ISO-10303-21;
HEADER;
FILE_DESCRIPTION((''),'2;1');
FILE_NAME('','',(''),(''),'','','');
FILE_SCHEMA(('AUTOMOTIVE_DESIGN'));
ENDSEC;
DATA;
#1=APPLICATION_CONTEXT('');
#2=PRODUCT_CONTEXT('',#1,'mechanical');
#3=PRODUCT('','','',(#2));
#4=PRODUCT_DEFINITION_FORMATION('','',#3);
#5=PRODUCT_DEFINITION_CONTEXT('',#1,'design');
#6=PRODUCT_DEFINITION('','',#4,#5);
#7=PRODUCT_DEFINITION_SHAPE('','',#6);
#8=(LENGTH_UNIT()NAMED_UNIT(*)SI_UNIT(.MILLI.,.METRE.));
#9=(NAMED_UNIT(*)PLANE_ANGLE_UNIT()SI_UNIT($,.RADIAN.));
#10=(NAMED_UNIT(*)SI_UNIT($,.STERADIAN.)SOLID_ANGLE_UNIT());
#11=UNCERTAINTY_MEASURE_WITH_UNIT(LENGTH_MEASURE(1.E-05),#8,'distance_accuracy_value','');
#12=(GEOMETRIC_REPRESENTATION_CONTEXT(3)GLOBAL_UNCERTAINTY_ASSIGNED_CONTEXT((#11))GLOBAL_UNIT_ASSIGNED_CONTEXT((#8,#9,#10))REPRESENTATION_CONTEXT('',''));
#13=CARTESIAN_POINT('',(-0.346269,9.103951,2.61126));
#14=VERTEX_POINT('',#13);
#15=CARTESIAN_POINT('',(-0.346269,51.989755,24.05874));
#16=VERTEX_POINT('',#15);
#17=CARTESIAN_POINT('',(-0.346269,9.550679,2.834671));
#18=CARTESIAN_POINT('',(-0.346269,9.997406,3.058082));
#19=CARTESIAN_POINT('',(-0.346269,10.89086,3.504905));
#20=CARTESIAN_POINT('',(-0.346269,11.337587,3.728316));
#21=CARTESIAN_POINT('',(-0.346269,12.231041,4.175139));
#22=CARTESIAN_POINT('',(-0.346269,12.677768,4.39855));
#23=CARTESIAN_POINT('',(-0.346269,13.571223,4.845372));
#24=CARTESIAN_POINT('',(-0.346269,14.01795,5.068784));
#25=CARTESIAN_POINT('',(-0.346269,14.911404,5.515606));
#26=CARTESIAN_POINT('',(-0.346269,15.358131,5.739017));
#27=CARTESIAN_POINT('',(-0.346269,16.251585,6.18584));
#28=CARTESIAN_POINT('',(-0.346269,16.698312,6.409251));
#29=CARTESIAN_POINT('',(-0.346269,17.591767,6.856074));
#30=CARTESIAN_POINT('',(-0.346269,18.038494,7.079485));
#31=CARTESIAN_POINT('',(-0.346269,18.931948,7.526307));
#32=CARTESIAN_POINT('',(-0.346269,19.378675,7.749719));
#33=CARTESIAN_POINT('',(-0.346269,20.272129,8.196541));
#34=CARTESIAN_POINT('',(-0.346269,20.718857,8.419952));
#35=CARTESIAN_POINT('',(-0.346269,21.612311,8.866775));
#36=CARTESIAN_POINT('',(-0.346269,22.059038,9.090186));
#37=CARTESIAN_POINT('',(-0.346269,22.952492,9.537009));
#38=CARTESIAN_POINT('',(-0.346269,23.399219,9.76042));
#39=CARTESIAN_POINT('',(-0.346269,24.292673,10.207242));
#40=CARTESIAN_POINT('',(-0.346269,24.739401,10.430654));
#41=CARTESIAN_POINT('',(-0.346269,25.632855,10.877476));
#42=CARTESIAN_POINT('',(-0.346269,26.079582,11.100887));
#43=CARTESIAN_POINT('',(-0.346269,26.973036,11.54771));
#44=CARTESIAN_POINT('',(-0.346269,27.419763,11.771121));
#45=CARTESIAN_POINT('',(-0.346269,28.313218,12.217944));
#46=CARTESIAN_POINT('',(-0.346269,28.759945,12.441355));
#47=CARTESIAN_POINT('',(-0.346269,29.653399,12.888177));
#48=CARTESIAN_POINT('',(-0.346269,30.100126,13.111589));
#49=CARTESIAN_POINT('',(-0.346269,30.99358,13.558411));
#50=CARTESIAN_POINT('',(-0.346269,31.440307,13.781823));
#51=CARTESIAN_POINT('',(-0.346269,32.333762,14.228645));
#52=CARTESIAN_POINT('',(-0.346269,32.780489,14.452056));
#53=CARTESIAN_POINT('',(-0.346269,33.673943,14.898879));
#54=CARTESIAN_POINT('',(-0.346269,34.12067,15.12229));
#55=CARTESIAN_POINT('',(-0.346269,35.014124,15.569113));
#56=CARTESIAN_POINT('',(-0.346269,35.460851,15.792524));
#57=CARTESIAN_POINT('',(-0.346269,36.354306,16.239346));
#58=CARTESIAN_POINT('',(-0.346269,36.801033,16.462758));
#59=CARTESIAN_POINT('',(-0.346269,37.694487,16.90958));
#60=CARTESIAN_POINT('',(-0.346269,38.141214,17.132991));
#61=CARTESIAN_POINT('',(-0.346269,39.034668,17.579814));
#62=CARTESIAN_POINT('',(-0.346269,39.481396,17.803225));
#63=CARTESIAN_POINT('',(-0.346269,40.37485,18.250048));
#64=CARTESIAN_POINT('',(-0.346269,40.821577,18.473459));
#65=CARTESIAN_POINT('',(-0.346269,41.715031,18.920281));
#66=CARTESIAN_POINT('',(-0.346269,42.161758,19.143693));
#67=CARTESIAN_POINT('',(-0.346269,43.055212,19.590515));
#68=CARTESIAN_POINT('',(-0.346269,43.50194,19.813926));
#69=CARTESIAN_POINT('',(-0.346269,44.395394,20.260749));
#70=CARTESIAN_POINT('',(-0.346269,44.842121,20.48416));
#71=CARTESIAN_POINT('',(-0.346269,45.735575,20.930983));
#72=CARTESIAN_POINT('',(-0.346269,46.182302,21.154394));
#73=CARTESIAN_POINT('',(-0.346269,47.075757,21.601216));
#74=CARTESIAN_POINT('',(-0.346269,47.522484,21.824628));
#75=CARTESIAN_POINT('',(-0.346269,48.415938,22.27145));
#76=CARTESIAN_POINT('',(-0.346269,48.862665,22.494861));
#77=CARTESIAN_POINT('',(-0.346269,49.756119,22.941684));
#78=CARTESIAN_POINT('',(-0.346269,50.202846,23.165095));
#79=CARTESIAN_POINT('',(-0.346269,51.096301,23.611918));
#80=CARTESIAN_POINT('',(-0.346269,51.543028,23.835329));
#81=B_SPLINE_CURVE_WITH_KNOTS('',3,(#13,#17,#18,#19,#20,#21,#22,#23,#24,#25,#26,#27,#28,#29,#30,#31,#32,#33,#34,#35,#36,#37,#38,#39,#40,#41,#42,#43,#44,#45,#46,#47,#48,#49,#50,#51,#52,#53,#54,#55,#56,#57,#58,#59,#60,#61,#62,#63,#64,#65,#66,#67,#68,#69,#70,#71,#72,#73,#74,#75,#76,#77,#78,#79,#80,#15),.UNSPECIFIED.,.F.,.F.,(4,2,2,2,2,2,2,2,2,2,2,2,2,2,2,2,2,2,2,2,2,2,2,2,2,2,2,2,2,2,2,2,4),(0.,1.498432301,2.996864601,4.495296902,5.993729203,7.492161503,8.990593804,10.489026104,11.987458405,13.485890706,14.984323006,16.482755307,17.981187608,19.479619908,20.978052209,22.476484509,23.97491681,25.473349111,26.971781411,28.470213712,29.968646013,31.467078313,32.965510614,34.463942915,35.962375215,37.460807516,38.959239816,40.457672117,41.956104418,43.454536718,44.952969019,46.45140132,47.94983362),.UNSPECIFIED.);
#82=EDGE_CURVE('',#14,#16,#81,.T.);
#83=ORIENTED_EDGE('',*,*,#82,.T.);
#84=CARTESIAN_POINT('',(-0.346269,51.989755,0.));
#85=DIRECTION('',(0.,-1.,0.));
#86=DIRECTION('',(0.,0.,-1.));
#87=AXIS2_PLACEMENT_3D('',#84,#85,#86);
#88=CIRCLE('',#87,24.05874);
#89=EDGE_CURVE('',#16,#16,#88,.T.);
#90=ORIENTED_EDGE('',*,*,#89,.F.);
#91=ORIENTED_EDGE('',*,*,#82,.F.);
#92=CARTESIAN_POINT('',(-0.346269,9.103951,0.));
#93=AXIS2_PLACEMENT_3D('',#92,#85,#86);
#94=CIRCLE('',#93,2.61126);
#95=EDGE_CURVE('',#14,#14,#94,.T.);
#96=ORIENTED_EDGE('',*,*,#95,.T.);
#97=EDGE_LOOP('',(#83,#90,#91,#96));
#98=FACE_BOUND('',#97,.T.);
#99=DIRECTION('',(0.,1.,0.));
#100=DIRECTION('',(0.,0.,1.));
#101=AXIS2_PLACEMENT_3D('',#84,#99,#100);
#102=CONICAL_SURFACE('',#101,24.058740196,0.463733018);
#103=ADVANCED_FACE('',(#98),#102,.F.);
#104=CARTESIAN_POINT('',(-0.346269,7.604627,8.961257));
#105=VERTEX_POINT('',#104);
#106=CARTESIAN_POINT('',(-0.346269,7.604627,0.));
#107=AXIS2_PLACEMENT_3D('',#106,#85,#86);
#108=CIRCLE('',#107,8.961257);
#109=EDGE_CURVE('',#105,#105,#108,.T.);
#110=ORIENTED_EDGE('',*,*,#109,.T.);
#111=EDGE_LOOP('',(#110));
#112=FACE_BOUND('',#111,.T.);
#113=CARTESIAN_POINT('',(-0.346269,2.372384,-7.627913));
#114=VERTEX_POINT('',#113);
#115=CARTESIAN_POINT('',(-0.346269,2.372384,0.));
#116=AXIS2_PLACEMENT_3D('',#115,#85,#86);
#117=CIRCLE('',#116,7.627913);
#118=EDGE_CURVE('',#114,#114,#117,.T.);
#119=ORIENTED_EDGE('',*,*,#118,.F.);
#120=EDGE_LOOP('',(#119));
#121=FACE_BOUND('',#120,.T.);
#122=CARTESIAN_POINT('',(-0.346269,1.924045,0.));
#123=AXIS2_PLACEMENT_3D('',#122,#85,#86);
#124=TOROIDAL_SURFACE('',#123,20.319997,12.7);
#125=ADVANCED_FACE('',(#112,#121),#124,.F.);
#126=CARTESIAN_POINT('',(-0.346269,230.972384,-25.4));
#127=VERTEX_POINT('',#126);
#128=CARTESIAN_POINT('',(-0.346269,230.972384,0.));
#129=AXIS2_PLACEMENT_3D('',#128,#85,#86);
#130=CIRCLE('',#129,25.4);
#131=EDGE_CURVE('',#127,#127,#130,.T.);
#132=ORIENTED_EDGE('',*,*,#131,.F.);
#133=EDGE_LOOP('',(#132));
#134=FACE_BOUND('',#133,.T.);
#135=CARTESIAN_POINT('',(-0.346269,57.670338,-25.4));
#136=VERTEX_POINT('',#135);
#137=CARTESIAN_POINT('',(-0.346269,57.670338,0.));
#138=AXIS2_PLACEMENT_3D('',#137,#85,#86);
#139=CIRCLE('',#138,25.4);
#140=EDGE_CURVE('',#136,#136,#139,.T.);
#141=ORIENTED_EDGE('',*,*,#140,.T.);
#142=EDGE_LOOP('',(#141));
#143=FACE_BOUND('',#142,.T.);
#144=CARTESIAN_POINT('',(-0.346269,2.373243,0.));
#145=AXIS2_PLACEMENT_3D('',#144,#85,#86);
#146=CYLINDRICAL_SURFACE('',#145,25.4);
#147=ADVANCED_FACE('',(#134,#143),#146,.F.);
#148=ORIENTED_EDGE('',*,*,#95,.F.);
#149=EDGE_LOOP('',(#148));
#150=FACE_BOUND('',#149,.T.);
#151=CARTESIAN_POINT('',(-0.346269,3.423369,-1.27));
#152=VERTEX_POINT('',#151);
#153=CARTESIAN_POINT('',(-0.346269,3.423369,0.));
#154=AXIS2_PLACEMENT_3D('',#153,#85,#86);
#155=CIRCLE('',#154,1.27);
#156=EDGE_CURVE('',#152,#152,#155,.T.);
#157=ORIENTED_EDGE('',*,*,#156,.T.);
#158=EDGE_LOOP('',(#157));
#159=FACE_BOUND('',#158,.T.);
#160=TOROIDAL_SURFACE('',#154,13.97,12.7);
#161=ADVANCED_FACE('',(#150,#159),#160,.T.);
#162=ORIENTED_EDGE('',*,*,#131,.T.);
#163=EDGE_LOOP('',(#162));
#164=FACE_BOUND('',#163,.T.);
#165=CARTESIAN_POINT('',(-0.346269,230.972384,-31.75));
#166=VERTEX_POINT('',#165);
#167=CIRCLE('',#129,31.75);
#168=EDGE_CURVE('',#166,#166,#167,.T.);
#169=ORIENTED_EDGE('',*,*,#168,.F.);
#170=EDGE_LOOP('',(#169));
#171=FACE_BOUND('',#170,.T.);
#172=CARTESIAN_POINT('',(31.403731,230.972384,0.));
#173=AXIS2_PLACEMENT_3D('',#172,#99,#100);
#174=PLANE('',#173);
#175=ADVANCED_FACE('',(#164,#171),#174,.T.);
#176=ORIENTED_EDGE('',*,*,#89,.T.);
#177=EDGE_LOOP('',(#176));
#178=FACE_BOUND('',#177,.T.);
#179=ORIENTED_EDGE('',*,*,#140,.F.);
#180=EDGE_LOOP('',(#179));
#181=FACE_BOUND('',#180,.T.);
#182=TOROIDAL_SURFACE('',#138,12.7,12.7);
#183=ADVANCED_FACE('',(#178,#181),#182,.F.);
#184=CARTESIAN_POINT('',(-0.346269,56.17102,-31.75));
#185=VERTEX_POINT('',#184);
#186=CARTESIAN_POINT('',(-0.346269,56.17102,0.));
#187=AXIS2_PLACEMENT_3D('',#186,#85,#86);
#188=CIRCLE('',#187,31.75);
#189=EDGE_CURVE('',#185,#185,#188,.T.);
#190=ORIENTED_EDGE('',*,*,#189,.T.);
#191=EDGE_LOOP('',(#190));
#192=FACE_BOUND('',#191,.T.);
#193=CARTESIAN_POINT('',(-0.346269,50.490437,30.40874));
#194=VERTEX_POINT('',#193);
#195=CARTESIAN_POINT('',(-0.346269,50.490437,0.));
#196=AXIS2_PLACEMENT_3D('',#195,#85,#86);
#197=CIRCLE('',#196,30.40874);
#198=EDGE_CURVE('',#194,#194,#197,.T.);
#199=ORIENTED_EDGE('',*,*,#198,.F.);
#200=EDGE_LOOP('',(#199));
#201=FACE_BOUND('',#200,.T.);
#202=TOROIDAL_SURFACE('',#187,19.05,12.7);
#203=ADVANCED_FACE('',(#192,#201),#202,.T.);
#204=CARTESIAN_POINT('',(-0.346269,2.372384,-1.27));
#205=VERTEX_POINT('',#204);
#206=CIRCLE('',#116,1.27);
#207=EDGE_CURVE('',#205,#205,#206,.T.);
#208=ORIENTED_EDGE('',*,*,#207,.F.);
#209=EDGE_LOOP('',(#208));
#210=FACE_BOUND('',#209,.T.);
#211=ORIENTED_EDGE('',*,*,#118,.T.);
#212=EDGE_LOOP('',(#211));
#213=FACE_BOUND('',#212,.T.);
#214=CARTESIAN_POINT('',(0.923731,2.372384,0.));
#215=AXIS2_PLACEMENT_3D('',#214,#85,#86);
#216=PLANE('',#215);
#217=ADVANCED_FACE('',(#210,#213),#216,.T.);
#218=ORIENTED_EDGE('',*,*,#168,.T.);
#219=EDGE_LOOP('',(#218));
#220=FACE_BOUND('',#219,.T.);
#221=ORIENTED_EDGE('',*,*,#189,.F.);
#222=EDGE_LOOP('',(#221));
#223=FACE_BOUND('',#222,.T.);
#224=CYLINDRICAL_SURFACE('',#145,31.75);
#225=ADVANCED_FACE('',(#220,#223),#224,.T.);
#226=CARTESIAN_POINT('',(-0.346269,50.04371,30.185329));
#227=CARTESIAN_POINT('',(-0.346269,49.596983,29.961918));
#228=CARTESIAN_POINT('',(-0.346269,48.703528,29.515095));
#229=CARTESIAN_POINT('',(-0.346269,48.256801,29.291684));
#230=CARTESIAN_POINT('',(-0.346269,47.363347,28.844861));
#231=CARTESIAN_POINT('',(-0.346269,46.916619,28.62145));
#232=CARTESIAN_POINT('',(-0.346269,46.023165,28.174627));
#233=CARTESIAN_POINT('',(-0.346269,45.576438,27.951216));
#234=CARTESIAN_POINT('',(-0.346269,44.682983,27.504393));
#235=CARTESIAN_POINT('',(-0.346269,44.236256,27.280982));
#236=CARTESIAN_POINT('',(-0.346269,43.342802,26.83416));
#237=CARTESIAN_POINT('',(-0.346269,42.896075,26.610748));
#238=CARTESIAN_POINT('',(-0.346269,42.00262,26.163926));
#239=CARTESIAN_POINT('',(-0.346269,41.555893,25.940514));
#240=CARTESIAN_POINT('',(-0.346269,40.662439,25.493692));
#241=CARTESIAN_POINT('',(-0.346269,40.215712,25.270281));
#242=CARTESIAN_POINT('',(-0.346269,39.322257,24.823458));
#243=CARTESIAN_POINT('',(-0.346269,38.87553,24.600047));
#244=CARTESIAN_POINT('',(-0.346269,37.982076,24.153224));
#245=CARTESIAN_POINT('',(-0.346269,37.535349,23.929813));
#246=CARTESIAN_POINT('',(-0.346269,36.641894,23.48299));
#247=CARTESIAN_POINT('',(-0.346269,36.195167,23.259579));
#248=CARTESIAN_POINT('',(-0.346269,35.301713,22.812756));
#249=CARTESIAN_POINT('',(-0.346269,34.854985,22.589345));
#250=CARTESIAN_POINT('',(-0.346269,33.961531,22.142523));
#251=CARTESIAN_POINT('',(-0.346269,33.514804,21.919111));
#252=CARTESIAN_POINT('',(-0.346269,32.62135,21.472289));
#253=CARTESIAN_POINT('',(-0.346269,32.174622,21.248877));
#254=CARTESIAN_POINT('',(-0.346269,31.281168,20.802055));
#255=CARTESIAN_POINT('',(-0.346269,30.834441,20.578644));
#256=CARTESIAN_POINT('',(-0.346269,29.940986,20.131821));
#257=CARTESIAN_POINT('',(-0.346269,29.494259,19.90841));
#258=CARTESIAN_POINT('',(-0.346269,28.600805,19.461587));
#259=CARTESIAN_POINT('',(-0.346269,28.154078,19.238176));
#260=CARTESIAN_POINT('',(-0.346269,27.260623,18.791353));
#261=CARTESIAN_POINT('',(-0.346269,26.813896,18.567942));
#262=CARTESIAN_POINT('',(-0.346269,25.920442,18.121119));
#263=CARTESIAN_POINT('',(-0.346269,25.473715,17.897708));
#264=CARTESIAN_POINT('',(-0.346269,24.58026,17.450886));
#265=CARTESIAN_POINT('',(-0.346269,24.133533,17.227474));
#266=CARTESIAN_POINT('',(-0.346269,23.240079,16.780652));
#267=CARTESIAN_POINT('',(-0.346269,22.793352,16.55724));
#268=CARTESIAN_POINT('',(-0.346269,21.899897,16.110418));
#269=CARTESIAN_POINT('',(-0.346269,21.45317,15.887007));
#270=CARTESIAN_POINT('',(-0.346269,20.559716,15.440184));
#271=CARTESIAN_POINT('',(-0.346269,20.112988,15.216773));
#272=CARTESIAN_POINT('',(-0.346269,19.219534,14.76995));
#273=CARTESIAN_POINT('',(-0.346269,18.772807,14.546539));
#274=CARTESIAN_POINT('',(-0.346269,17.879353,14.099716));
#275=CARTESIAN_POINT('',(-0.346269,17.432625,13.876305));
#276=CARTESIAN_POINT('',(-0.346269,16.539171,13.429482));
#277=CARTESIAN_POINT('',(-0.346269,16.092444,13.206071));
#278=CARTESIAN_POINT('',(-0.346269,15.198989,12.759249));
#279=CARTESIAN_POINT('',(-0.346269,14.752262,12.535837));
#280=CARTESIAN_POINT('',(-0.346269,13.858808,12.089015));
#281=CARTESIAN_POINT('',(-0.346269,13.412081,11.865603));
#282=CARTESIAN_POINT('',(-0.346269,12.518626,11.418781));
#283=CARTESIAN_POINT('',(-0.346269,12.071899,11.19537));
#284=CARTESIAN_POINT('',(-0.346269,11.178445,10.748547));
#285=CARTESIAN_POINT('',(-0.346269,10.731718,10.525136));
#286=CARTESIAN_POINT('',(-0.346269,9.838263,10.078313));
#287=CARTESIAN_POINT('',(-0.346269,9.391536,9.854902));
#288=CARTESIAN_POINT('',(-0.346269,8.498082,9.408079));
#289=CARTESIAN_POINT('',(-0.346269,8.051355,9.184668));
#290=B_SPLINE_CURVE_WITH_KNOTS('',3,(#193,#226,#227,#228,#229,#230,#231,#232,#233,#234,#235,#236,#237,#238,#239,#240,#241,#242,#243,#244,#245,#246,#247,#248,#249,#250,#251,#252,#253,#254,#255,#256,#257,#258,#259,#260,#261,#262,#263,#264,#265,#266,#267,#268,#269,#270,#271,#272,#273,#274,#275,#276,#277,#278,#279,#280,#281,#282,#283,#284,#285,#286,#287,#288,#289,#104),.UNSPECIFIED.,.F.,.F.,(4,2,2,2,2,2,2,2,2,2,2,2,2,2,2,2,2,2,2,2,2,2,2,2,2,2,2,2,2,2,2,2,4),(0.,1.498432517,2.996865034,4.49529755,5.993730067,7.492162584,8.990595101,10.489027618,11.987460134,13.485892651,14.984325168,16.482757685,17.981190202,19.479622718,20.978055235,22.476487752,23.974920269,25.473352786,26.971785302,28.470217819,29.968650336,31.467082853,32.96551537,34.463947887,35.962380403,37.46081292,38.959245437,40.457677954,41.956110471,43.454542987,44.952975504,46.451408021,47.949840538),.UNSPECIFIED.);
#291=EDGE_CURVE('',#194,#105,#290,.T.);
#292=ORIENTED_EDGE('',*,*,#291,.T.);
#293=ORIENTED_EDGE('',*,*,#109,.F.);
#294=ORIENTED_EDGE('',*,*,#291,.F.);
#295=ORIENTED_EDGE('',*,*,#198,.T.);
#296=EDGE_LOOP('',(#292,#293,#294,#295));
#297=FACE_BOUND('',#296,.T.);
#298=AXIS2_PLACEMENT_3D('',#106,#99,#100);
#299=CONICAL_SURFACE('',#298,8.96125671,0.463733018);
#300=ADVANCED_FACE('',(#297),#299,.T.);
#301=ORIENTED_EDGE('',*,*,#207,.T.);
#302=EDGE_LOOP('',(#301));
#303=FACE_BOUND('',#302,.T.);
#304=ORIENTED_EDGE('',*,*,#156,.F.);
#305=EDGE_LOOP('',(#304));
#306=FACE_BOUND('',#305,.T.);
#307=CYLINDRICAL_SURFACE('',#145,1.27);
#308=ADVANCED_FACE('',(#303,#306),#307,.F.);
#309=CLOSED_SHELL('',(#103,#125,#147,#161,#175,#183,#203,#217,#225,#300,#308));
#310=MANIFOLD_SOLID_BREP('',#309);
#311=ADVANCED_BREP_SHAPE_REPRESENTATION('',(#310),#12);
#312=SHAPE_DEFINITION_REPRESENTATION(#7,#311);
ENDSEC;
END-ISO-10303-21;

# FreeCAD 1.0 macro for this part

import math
import FreeCAD as App
import Part
import Sketcher

V = App.Vector
Q = App.Units.Quantity

doc = App.newDocument("Part")
body = doc.addObject("PartDesign::Body", "Body")

sketch1 = body.newObject("Sketcher::SketchObject", "Sketch")
sketch1.AttachmentSupport = (doc.getObject("XY_Plane"), [""])
sketch1.MapMode = "FlatFace"
sketch1.addGeometry([
    Part.LineSegment(V(0.9, 2.4, 0), V(7.3, 2.4, 0)),
    Part.ArcOfCircle(Part.Circle(V(20, 1.9, 0), V(0, 0, 1), 12.7), math.radians(153), math.radians(178)),
    Part.LineSegment(V(8.6, 7.6, 0), V(30.1, 50.5, 0)),
    Part.ArcOfCircle(Part.Circle(V(18.7, 56.2, 0), V(0, 0, 1), 12.7), math.radians(-27), math.radians(0)),
    Part.LineSegment(V(31.4, 56.2, 0), V(31.4, 231, 0)),
    Part.LineSegment(V(31.4, 231, 0), V(25.1, 231, 0)),
    Part.LineSegment(V(25.1, 231, 0), V(25.1, 57.7, 0)),
    Part.ArcOfCircle(Part.Circle(V(12.4, 57.7, 0), V(0, 0, 1), 12.7), math.radians(-27), math.radians(0)),
    Part.LineSegment(V(23.7, 52, 0), V(2.3, 9.1, 0)),
    Part.ArcOfCircle(Part.Circle(V(13.6, 3.4, 0), V(0, 0, 1), 12.7), math.radians(153), math.radians(180)),
    Part.LineSegment(V(0.9, 3.4, 0), V(0.9, 2.4, 0)),
], False)
sketch1.addGeometry(Part.LineSegment(V(-0.3, 1.9, 0), V(-0.3, 231, 0)), True)
sketch1.addConstraint([
    Sketcher.Constraint("Coincident", 0, 2, 1, 2),
    Sketcher.Constraint("Tangent", 1, 1, 2, 1),
    Sketcher.Constraint("Tangent", 2, 2, 3, 1),
    Sketcher.Constraint("Tangent", 3, 2, 4, 1),
    Sketcher.Constraint("Coincident", 4, 2, 5, 1),
    Sketcher.Constraint("Coincident", 5, 2, 6, 1),
    Sketcher.Constraint("Tangent", 6, 2, 7, 2),
    Sketcher.Constraint("Tangent", 7, 1, 8, 1),
    Sketcher.Constraint("Tangent", 8, 2, 9, 1),
    Sketcher.Constraint("Tangent", 9, 2, 10, 1),
    Sketcher.Constraint("Coincident", 10, 2, 0, 1),
    Sketcher.Constraint("Horizontal", 0),
    Sketcher.Constraint("Vertical", 4),
    Sketcher.Constraint("Horizontal", 5),
    Sketcher.Constraint("Vertical", 6),
    Sketcher.Constraint("Vertical", 10),
    Sketcher.Constraint("Vertical", 11),
    Sketcher.Constraint("Equal", 1, 3),
    Sketcher.Constraint("Equal", 3, 7),
    Sketcher.Constraint("Equal", 7, 9),
    Sketcher.Constraint("Parallel", 2, 8),
    Sketcher.Constraint("Horizontal", 1, 3, 11, 1),
    Sketcher.Constraint("Horizontal", 5, 2, 11, 2),
    Sketcher.Constraint("Radius", 1, Q("0.5 in")),
    Sketcher.Constraint("DistanceX", 11, 2, 5, 2, Q("1 in")),
    Sketcher.Constraint("DistanceX", 5, 2, 5, 1, Q("0.25 in")),
    Sketcher.Constraint("DistanceX", 7, 3, 1, 3, Q("0.2999999 in")),
    Sketcher.Constraint("DistanceX", 9, 3, 3, 3, Q("0.2 in")),
    Sketcher.Constraint("DistanceY", 11, 1, 11, 2, Q("229.048339 mm")),
    Sketcher.Constraint("DistanceY", 2, 2, 7, 3, Q("7.179901 mm")),
    Sketcher.Constraint("Distance", 2, Q("47.949841 mm")),
    Sketcher.Constraint("DistanceX", 0, 1, 0, 2, Q("6.357913 mm")),
    Sketcher.Constraint("DistanceX", -1, 1, 1, 3, Q("19.973728 mm")),
    Sketcher.Constraint("DistanceY", -1, 1, 3, 3, Q("56.17102 mm")),
])
revolution = body.newObject("PartDesign::Revolution", "Revolution")
revolution.Profile = sketch1
revolution.ReferenceAxis = (sketch1, ["Axis0"])
revolution.Angle = 360

doc.recompute()
